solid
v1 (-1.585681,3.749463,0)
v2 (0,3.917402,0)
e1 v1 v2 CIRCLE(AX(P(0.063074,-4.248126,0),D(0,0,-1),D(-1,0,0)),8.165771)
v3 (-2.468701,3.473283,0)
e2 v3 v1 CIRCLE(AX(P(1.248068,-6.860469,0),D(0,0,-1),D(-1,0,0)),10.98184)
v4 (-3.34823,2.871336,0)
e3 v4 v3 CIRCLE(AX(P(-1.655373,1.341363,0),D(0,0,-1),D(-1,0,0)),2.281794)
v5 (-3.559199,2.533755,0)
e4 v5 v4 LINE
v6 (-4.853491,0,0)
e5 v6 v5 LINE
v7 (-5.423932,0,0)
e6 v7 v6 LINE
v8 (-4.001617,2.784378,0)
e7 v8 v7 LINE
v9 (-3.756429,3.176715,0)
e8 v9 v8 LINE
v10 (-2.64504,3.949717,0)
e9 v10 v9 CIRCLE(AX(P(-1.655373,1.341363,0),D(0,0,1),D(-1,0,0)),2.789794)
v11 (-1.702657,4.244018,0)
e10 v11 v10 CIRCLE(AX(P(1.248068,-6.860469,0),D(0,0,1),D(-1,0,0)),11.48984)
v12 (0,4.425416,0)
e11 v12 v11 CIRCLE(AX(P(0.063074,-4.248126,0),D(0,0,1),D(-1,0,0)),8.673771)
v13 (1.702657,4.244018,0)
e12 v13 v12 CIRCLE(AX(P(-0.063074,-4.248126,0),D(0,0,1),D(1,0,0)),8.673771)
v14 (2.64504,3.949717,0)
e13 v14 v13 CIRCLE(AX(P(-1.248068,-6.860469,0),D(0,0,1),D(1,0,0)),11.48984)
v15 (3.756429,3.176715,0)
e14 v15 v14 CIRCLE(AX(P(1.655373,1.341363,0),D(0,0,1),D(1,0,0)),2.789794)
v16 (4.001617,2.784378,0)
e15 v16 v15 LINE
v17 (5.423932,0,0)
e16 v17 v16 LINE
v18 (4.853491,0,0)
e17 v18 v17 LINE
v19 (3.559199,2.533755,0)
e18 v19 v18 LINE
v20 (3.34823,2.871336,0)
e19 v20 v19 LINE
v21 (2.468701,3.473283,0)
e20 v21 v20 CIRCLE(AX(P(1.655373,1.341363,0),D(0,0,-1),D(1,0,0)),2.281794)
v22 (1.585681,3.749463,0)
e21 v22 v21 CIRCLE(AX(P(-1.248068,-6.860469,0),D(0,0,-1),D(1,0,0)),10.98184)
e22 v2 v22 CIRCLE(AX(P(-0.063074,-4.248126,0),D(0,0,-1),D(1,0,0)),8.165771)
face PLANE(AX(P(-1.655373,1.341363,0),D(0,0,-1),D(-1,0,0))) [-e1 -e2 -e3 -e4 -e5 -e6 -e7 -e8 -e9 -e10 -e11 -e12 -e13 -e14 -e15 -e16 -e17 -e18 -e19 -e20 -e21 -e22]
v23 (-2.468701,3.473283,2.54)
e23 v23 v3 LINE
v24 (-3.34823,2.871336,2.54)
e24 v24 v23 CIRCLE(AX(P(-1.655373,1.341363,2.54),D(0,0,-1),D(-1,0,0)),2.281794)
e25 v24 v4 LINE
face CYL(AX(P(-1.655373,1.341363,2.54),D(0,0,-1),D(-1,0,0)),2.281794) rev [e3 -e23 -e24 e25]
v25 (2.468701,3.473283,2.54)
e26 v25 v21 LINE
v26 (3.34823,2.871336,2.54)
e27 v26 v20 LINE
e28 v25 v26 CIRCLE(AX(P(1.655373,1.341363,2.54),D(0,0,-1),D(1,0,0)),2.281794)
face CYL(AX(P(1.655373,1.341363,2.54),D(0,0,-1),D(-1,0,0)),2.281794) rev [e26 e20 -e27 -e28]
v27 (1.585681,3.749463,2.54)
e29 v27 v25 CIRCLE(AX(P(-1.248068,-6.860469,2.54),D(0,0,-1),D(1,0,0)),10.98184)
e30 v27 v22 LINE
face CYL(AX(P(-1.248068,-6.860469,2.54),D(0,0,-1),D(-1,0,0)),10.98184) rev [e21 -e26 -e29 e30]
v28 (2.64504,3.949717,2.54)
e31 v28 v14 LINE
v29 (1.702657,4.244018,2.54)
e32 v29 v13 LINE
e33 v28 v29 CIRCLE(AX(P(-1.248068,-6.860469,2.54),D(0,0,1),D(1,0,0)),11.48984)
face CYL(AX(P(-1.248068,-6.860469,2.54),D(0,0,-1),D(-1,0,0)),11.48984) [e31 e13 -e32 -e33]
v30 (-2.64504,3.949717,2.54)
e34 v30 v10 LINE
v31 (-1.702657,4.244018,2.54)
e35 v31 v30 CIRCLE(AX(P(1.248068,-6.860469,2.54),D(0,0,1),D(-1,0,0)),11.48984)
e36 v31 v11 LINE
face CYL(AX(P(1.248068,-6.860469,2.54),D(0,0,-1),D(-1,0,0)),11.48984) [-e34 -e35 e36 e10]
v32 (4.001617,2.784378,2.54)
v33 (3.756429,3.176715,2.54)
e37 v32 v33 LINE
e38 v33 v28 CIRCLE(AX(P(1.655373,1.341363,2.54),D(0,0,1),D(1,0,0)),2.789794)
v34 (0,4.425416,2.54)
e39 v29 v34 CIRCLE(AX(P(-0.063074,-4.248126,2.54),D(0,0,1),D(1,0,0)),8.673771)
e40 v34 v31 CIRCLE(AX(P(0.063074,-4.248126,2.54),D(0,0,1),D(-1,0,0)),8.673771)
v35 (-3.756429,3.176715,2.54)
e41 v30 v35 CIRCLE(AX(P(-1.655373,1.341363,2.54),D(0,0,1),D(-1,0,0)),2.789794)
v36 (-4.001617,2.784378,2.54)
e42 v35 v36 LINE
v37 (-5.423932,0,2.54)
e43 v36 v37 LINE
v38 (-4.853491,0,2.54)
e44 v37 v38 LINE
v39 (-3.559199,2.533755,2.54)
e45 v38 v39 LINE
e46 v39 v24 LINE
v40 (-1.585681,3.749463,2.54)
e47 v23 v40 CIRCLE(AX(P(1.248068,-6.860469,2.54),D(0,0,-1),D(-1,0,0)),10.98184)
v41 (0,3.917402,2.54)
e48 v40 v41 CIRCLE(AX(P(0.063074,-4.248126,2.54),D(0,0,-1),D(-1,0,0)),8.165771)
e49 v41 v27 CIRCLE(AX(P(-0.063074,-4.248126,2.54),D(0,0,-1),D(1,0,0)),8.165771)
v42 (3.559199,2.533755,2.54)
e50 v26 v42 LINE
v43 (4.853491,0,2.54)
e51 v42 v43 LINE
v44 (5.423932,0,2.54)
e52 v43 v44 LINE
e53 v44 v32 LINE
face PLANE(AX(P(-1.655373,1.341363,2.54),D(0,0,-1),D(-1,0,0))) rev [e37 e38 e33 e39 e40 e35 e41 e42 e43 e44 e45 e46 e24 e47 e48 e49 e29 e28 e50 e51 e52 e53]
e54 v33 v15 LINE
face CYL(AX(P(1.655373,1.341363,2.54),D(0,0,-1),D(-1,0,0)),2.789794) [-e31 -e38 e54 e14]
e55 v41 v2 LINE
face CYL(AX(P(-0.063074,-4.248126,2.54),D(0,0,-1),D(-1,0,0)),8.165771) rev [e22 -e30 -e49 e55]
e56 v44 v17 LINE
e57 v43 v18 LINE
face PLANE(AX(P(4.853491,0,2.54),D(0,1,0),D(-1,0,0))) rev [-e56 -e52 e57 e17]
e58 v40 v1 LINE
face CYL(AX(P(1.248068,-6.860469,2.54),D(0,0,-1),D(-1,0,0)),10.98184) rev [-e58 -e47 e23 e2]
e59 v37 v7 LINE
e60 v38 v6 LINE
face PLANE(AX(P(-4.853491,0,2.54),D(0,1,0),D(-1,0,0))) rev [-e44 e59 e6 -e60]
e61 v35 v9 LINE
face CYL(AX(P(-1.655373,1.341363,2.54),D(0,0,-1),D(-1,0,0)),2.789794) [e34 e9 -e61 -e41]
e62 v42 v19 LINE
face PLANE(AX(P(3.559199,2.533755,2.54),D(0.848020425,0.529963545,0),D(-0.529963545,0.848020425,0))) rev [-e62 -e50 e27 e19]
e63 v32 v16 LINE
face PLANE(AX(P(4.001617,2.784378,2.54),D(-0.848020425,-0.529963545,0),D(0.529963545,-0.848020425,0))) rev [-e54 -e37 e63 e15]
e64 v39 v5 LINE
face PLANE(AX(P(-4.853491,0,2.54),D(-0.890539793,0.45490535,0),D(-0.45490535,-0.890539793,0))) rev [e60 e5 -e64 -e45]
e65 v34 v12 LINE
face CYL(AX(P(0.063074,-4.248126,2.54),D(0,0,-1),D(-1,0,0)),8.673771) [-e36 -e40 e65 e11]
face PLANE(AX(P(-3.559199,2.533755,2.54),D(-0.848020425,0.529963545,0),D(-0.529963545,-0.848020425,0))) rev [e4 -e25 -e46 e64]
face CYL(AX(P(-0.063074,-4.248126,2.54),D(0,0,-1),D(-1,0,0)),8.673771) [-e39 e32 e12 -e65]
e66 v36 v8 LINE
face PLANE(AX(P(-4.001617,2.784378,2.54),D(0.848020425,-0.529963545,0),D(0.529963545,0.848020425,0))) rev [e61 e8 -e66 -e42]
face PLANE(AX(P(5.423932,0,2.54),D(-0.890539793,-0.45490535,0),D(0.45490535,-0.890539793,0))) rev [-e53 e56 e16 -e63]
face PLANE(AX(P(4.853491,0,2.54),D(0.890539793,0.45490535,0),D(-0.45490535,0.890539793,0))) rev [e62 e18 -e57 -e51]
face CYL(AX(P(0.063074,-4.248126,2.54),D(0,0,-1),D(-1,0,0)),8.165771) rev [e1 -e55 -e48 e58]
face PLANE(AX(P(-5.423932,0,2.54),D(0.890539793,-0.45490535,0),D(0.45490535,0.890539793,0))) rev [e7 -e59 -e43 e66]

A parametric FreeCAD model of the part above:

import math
import FreeCAD as App
import Part
import Sketcher

V = App.Vector
Q = App.Units.Quantity

doc = App.newDocument("Part")
body = doc.addObject("PartDesign::Body", "Body")

sketch1 = doc.addObject("Sketcher::SketchObject", "Sketch")
body.addObject(sketch1)
sketch1.AttachmentSupport = (doc.XY_Plane, [""])
sketch1.MapMode = "FlatFace"
sketch1.addGeometry([
    Part.LineSegment(V(-4.85, 0, 0), V(-3.56, 2.53, 0)),
    Part.LineSegment(V(-3.56, 2.53, 0), V(-3.35, 2.87, 0)),
    Part.ArcOfCircle(Part.Circle(V(-1.66, 1.34, 0), V(0, 0, 1), 2.28), math.radians(111), math.radians(138)),
    Part.ArcOfCircle(Part.Circle(V(1.25, -6.86, 0), V(0, 0, 1), 10.98), math.radians(104.95), math.radians(109.78)),
    Part.ArcOfCircle(Part.Circle(V(0.06, -4.25, 0), V(0, 0, 1), 8.17), math.radians(90.44), math.radians(101.65)),
    Part.ArcOfCircle(Part.Circle(V(-0.06, -4.25, 0), V(0, 0, 1), 8.17), math.radians(78.35), math.radians(89.56)),
    Part.ArcOfCircle(Part.Circle(V(-1.25, -6.86, 0), V(0, 0, 1), 10.98), math.radians(70.22), math.radians(75.05)),
    Part.ArcOfCircle(Part.Circle(V(1.66, 1.34, 0), V(0, 0, 1), 2.28), math.radians(42), math.radians(69)),
    Part.LineSegment(V(3.35, 2.87, 0), V(3.56, 2.53, 0)),
    Part.LineSegment(V(3.56, 2.53, 0), V(4.85, 0, 0)),
    Part.LineSegment(V(4.85, 0, 0), V(5.42, 0, 0)),
    Part.LineSegment(V(5.42, 0, 0), V(4, 2.78, 0)),
    Part.LineSegment(V(4, 2.78, 0), V(3.76, 3.18, 0)),
    Part.ArcOfCircle(Part.Circle(V(1.66, 1.34, 0), V(0, 0, 1), 2.79), math.radians(41), math.radians(69)),
    Part.ArcOfCircle(Part.Circle(V(-1.25, -6.86, 0), V(0, 0, 1), 11.49), math.radians(70.19), math.radians(75.12)),
    Part.ArcOfCircle(Part.Circle(V(-0.06, -4.25, 0), V(0, 0, 1), 8.67), math.radians(78.25), math.radians(89.58)),
    Part.ArcOfCircle(Part.Circle(V(0.06, -4.25, 0), V(0, 0, 1), 8.67), math.radians(90.42), math.radians(101.75)),
    Part.ArcOfCircle(Part.Circle(V(1.25, -6.86, 0), V(0, 0, 1), 11.49), math.radians(104.88), math.radians(109.81)),
    Part.ArcOfCircle(Part.Circle(V(-1.66, 1.34, 0), V(0, 0, 1), 2.79), math.radians(111), math.radians(139)),
    Part.LineSegment(V(-3.76, 3.18, 0), V(-4, 2.78, 0)),
    Part.LineSegment(V(-4, 2.78, 0), V(-5.42, 0, 0)),
    Part.LineSegment(V(-5.42, 0, 0), V(-4.85, 0, 0)),
], False)
sketch1.addConstraint([
    Sketcher.Constraint("Coincident", 0, 2, 1, 1),
    Sketcher.Constraint("Coincident", 1, 2, 2, 2),
    Sketcher.Constraint("Coincident", 2, 1, 3, 2),
    Sketcher.Constraint("Coincident", 3, 1, 4, 2),
    Sketcher.Constraint("Coincident", 4, 1, 5, 2),
    Sketcher.Constraint("Coincident", 5, 1, 6, 2),
    Sketcher.Constraint("Coincident", 6, 1, 7, 2),
    Sketcher.Constraint("Coincident", 7, 1, 8, 1),
    Sketcher.Constraint("Coincident", 8, 2, 9, 1),
    Sketcher.Constraint("Coincident", 9, 2, 10, 1),
    Sketcher.Constraint("Coincident", 10, 2, 11, 1),
    Sketcher.Constraint("Coincident", 11, 2, 12, 1),
    Sketcher.Constraint("Coincident", 12, 2, 13, 1),
    Sketcher.Constraint("Coincident", 13, 2, 14, 1),
    Sketcher.Constraint("Coincident", 14, 2, 15, 1),
    Sketcher.Constraint("Coincident", 15, 2, 16, 1),
    Sketcher.Constraint("Coincident", 16, 2, 17, 1),
    Sketcher.Constraint("Coincident", 17, 2, 18, 1),
    Sketcher.Constraint("Coincident", 18, 2, 19, 1),
    Sketcher.Constraint("Coincident", 19, 2, 20, 1),
    Sketcher.Constraint("Coincident", 20, 2, 21, 1),
    Sketcher.Constraint("Coincident", 21, 2, 0, 1),
    Sketcher.Constraint("Horizontal", 10),
    Sketcher.Constraint("Horizontal", 21),
    Sketcher.Constraint("Coincident", 13, 3, 7, 3),
    Sketcher.Constraint("Coincident", 14, 3, 6, 3),
    Sketcher.Constraint("Coincident", 15, 3, 5, 3),
    Sketcher.Constraint("Coincident", 16, 3, 4, 3),
    Sketcher.Constraint("Coincident", 17, 3, 3, 3),
    Sketcher.Constraint("Coincident", 18, 3, 2, 3),
    Sketcher.Constraint("Equal", 4, 5),
    Sketcher.Constraint("Equal", 3, 6),
    Sketcher.Constraint("Equal", 2, 7),
    Sketcher.Constraint("Equal", 15, 16),
    Sketcher.Constraint("Equal", 14, 17),
    Sketcher.Constraint("Equal", 13, 18),
    Sketcher.Constraint("Symmetric", 10, 2, 20, 2, -1, 1),
    Sketcher.Constraint("Symmetric", 4, 3, 5, 3, -2),
    Sketcher.Constraint("Symmetric", 3, 3, 6, 3, -2),
    Sketcher.Constraint("Symmetric", 2, 3, 7, 3, -2),
    Sketcher.Constraint("Symmetric", 0, 2, 8, 2, -2),
    Sketcher.Constraint("Symmetric", 11, 2, 19, 2, -2),
    Sketcher.Constraint("Symmetric", 9, 2, 21, 2, -2),
    Sketcher.Constraint("Parallel", 9, 11),
    Sketcher.Constraint("Parallel", 8, 12),
    Sketcher.Constraint("Parallel", 1, 19),
    Sketcher.Constraint("Horizontal", 1, 2, 7, 1),
    Sketcher.Constraint("Radius", 3, 10.98184),
    Sketcher.Constraint("Radius", 4, 8.165771),
    Sketcher.Constraint("Radius", 14, 11.48984),
    Sketcher.Constraint("Radius", 15, 8.673771),
    Sketcher.Constraint("Radius", 2, 2.281794),
    Sketcher.Constraint("Radius", 13, 2.789794),
    Sketcher.Constraint("DistanceX", 10, 1, 10, 2, 0.570441),
    Sketcher.Constraint("DistanceX", 0, 2, -1, 1, 3.559199),
    Sketcher.Constraint("DistanceX", 2, 1, -1, 1, 2.468701),
    Sketcher.Constraint("DistanceX", 2, 3, 5, 3, 1.592299),
    Sketcher.Constraint("DistanceY", 2, 3, 3, 1, 2.4081),
    Sketcher.Constraint("DistanceX", 7, 1, 10, 2, 2.075701),
    Sketcher.Constraint("DistanceX", 7, 1, 12, 2, 0.408198),
    Sketcher.Constraint("DistanceY", 13, 2, 14, 2, 0.294301),
    Sketcher.Constraint("DistanceY", 14, 2, 15, 2, 0.181398),
    Sketcher.Constraint("Distance", 0, 2.84519),
    Sketcher.Constraint("Distance", 1, 0.398082),
    Sketcher.Constraint("Distance", 12, 0.46265),
])
pad1 = doc.addObject("PartDesign::Pad", "Pad")
body.addObject(pad1)
pad1.Profile = sketch1
pad1.Length = Q("0.1 in")

doc.recompute()
